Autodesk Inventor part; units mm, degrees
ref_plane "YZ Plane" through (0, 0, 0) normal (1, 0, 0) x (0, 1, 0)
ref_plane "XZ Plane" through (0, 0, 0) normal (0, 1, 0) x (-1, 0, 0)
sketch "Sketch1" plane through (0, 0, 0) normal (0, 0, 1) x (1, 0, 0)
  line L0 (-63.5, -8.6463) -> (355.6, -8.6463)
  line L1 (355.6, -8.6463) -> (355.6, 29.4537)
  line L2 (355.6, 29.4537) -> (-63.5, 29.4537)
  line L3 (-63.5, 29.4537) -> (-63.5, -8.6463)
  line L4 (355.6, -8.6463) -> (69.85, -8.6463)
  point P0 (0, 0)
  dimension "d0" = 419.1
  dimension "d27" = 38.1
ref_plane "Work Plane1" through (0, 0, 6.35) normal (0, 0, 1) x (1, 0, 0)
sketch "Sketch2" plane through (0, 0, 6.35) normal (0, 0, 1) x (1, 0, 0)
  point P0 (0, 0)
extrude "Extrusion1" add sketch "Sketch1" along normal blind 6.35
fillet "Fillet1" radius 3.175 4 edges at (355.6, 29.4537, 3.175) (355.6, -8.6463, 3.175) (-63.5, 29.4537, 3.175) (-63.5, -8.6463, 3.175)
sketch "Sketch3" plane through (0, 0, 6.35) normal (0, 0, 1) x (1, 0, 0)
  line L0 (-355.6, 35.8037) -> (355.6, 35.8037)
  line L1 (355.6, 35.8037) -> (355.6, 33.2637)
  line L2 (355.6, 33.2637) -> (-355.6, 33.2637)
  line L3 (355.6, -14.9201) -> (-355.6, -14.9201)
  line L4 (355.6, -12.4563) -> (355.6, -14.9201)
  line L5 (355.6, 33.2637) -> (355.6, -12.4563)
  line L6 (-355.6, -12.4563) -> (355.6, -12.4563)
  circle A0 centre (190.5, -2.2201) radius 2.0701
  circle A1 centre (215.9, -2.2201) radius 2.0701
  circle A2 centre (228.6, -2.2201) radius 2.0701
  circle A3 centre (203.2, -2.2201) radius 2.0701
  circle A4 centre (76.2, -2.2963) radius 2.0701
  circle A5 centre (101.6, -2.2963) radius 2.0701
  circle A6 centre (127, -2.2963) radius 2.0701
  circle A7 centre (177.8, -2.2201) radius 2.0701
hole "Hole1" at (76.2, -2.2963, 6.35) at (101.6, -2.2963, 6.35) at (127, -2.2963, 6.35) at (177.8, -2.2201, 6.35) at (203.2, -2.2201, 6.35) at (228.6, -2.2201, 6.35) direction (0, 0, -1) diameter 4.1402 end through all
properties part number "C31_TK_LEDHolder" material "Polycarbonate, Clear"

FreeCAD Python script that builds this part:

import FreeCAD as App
import Part
import Sketcher
Q = App.Units.Quantity


def edges_at(feature, points):
    """Names of the edges that pass closest to the given points."""
    edges = feature.Shape.Edges
    near = lambda p: min(range(len(edges)), key=lambda i: edges[i].distToShape(Part.Vertex(*p))[0])
    return sorted({f"Edge{near(p) + 1}" for p in points})

doc = App.newDocument("Part")
params = doc.addObject("Spreadsheet::Sheet", "Params")
for row, (alias, value) in enumerate([
    ("sketch1_width", "16.5 in"),
    ("sketch1_height", "1.5 in"),
    ("pad1_length", "0.25 in"),
    ("fillet_radius", "0.125 in"),
    ("sketch2_diameter", "0.163 in"),
    ("hole_diameter", "0.163 in"),
], start=1):
    params.set(f"A{row}", alias)
    params.set(f"B{row}", "=" + value)
    params.setAlias(f"B{row}", alias)

body = doc.addObject("PartDesign::Body", "Body")

# Sketch on XY plane
sketch1 = body.newObject("Sketcher::SketchObject", "Sketch")
sketch1.AttachmentSupport = (doc.getObject("XY_Plane"), [""])
sketch1.MapMode = "FlatFace"
sketch1.addGeometry([
    Part.LineSegment(App.Vector(-63.5, 29.4537, 0), App.Vector(-63.5, -8.6463, 0)),
    Part.LineSegment(App.Vector(-63.5, -8.6463, 0), App.Vector(355.6, -8.6463, 0)),
    Part.LineSegment(App.Vector(355.6, -8.6463, 0), App.Vector(355.6, 29.4537, 0)),
    Part.LineSegment(App.Vector(355.6, 29.4537, 0), App.Vector(-63.5, 29.4537, 0)),
], False)
sketch1.addConstraint([
    Sketcher.Constraint("Coincident", 0, 2, 1, 1),
    Sketcher.Constraint("Coincident", 1, 2, 2, 1),
    Sketcher.Constraint("Coincident", 2, 2, 3, 1),
    Sketcher.Constraint("Coincident", 3, 2, 0, 1),
    Sketcher.Constraint("Vertical", 0),
    Sketcher.Constraint("Horizontal", 1),
    Sketcher.Constraint("Vertical", 2),
    Sketcher.Constraint("Horizontal", 3),
    Sketcher.Constraint("DistanceX", 1, 1, 1, 2, Q("16.5 in")),
    Sketcher.Constraint("DistanceY", 0, 2, 0, 1, Q("1.5 in")),
    Sketcher.Constraint("DistanceX", -1, 1, 1, 2, Q("14 in")),
    Sketcher.Constraint("DistanceY", 0, 2, -1, 1, Q("0.3404 in")),
])
sketch1.setExpression("Constraints[8]", "Params.sketch1_width")
sketch1.setExpression("Constraints[9]", "Params.sketch1_height")
pad1 = body.newObject("PartDesign::Pad", "Pad")
pad1.Profile = sketch1
pad1.setExpression("Length", "Params.pad1_length")
doc.recompute()

fillet = body.newObject("PartDesign::Fillet", "Fillet")
fillet.Base = (pad1, edges_at(pad1, [
    (355.6, 29.454, 3.175),
    (355.6, -8.646, 3.175),
    (-63.5, 29.454, 3.175),
    (-63.5, -8.646, 3.175),
]))
fillet.setExpression("Radius", "Params.fillet_radius")

# Sketch on XY plane
sketch2 = body.newObject("Sketcher::SketchObject", "Sketch001")
sketch2.AttachmentSupport = (doc.getObject("XY_Plane"), [""])
sketch2.MapMode = "FlatFace"
sketch2.AttachmentOffset = App.Placement(App.Vector(0, 0, 0.25 * 25.4), App.Rotation())
sketch2.addGeometry([
    Part.Circle(App.Vector(76.2, -2.2963, 0), App.Vector(0, 0, 1), 2.0701),  # 0
    Part.Circle(App.Vector(101.6, -2.2963, 0), App.Vector(0, 0, 1), 2.0701),  # 1
    Part.Circle(App.Vector(127, -2.2963, 0), App.Vector(0, 0, 1), 2.0701),  # 2
    Part.Circle(App.Vector(177.8, -2.2201, 0), App.Vector(0, 0, 1), 2.0701),  # 3
    Part.Circle(App.Vector(203.2, -2.2201, 0), App.Vector(0, 0, 1), 2.0701),  # 4
    Part.Circle(App.Vector(228.6, -2.2201, 0), App.Vector(0, 0, 1), 2.0701),  # 5
], False)
sketch2.addConstraint([
    Sketcher.Constraint("Equal", 0, 1),
    Sketcher.Constraint("Equal", 1, 2),
    Sketcher.Constraint("Equal", 2, 3),
    Sketcher.Constraint("Equal", 3, 4),
    Sketcher.Constraint("Equal", 4, 5),
    Sketcher.Constraint("Horizontal", 0, 3, 1, 3),
    Sketcher.Constraint("Horizontal", 1, 3, 2, 3),
    Sketcher.Constraint("Horizontal", 3, 3, 4, 3),
    Sketcher.Constraint("Horizontal", 4, 3, 5, 3),
    Sketcher.Constraint("Diameter", 0, Q("0.163 in")),
    Sketcher.Constraint("DistanceX", -1, 1, 0, 3, Q("3 in")),
    Sketcher.Constraint("DistanceX", -1, 1, 1, 3, Q("4 in")),
    Sketcher.Constraint("DistanceX", -1, 1, 2, 3, Q("5 in")),
    Sketcher.Constraint("DistanceX", -1, 1, 3, 3, Q("7 in")),
    Sketcher.Constraint("DistanceX", -1, 1, 4, 3, Q("8 in")),
    Sketcher.Constraint("DistanceX", -1, 1, 5, 3, Q("9 in")),
    Sketcher.Constraint("DistanceY", 2, 3, 3, 3, Q("0.003 in")),
    Sketcher.Constraint("DistanceY", 0, 3, -1, 1, Q("0.0904 in")),
])
sketch2.setExpression("Constraints[9]", "Params.sketch2_diameter")
doc.recompute()
hole = body.newObject("PartDesign::Hole", "Hole")
hole.Profile = sketch2
hole.ThreadType = "None"
hole.setExpression("Diameter", "Params.hole_diameter")
hole.DepthType = "ThroughAll"

doc.recompute()
